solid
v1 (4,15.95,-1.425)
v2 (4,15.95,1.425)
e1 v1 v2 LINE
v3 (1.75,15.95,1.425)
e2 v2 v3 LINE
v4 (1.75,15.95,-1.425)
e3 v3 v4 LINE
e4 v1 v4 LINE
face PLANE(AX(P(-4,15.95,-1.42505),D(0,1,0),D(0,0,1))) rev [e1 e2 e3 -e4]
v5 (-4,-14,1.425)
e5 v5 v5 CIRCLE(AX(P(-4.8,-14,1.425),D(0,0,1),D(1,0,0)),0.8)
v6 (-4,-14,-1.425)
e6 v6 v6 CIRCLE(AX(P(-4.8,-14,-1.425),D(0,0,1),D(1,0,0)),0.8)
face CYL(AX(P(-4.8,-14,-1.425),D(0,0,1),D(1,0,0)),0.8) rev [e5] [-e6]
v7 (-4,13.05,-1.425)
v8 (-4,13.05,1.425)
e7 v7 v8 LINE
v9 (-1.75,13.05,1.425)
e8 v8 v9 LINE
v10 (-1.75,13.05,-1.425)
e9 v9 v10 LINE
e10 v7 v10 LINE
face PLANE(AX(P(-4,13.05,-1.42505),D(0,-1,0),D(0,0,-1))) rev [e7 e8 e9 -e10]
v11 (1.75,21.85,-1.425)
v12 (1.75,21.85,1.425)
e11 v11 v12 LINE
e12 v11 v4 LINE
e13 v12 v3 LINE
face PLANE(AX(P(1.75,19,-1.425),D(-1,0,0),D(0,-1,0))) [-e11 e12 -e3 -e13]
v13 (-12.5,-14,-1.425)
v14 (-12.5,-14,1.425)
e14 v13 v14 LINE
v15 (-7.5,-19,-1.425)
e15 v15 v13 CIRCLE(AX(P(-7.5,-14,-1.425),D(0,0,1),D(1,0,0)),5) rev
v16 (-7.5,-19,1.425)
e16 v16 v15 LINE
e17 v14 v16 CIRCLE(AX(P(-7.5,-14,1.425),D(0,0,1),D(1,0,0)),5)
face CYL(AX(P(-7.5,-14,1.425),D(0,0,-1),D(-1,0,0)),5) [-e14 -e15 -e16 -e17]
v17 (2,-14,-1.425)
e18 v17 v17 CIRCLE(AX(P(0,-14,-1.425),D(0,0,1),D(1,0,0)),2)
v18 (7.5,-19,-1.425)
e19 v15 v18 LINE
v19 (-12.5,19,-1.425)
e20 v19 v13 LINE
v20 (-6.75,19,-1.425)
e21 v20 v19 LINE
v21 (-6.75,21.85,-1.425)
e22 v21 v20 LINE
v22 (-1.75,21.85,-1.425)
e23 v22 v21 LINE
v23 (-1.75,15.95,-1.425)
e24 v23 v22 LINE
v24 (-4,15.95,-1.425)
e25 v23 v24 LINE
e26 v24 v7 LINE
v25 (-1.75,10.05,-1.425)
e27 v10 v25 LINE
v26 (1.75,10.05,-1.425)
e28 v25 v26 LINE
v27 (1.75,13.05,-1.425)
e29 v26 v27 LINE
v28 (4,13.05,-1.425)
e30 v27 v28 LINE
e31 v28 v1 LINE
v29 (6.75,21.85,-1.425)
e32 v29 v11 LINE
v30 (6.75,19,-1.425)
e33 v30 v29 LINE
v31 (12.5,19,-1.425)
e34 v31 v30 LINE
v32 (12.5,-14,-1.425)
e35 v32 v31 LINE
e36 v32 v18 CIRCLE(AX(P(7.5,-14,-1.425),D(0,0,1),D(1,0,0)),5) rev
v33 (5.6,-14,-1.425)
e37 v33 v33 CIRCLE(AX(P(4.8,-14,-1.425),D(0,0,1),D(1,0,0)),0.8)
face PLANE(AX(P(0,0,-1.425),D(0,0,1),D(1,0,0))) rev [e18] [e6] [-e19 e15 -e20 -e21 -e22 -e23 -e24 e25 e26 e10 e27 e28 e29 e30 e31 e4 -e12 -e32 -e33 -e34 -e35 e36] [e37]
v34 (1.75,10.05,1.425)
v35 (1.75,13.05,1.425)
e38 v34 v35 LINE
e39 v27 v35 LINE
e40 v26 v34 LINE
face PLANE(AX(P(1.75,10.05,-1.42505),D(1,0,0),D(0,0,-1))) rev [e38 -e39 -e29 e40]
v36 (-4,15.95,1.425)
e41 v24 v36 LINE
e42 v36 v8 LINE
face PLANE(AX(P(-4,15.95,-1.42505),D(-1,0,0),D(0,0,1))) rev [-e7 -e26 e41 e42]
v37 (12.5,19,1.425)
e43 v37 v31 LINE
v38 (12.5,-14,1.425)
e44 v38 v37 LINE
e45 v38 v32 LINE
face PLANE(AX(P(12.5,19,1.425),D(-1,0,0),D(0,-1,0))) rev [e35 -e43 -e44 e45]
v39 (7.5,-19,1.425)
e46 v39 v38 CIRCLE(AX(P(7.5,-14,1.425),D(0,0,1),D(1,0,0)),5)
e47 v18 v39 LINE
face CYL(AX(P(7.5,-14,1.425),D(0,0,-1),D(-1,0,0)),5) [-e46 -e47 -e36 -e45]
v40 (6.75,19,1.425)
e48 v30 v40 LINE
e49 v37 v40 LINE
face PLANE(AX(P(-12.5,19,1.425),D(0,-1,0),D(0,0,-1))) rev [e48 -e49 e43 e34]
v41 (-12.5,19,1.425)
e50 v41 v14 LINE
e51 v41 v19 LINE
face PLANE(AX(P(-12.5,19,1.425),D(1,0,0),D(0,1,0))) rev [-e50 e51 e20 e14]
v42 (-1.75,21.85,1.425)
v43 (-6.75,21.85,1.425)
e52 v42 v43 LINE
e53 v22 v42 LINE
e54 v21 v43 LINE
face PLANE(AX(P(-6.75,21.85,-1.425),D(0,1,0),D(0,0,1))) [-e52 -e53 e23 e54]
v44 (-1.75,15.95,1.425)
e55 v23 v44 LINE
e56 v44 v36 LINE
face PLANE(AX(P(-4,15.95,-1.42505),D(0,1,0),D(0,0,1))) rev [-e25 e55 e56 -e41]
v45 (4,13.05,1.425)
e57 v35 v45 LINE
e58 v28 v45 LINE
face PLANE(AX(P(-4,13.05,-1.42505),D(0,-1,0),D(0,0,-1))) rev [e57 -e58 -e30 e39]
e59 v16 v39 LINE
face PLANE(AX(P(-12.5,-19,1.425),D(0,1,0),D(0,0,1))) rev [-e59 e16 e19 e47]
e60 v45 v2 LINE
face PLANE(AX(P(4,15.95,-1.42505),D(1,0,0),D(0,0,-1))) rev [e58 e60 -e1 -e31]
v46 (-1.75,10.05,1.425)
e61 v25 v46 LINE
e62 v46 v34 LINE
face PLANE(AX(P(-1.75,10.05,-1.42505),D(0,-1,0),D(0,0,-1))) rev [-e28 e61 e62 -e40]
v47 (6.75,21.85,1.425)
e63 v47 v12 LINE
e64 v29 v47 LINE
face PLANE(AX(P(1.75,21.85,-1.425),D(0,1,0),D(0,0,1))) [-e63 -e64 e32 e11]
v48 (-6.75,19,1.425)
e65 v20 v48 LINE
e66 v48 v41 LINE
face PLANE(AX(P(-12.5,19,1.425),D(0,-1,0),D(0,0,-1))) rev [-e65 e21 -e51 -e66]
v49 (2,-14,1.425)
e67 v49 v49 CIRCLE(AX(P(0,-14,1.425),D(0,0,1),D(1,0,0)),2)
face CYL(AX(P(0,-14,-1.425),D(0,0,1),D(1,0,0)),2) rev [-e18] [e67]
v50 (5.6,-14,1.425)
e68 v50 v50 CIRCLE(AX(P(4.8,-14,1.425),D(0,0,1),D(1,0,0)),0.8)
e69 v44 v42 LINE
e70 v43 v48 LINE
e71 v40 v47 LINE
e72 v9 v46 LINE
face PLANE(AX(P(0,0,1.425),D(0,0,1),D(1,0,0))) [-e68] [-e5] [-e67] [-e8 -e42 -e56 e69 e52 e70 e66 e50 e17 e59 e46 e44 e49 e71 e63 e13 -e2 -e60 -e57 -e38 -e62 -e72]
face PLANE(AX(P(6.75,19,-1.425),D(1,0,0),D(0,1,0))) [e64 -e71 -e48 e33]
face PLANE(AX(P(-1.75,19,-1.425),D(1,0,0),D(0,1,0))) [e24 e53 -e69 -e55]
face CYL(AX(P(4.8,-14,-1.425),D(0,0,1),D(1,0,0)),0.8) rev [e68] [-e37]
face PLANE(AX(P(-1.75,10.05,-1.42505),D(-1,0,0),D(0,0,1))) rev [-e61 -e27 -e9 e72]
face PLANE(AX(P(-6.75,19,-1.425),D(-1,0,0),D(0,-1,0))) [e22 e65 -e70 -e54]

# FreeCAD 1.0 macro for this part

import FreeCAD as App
import Part
import Sketcher

V = App.Vector
Q = App.Units.Quantity


def edges_at(feature, points):
    """Names of the edges that pass closest to the given points."""
    edges = feature.Shape.Edges
    near = lambda p: min(range(len(edges)), key=lambda i: edges[i].distToShape(Part.Vertex(*p))[0])
    return sorted({f"Edge{near(p) + 1}" for p in points})


def add_polygon(sketch, points):
    """Adds a closed chain of lines whose ends are joined by coincident constraints."""
    first, n = sketch.GeometryCount, len(points)
    for a, b in zip(points, points[1:] + points[:1]):
        sketch.addGeometry(Part.LineSegment(App.Vector(*a, 0), App.Vector(*b, 0)), False)
    for i in range(n):
        sketch.addConstraint(Sketcher.Constraint("Coincident", first + i, 2, first + (i + 1) % n, 1))

doc = App.newDocument("Part")
params = doc.addObject("Spreadsheet::Sheet", "Params")
for row, (alias, value) in enumerate([
    ("sketch1_width", "25 mm"),
    ("sketch1_height", "38 mm"),
    ("pad1_length", "2.85 mm"),
    ("sketch2_diameter", "4 mm"),
    ("sketch3_diameter", "1.6 mm"),
    ("sketch4_width", "5 mm"),
    ("sketch4_height", "2.85 mm"),
    ("pad2_length", "2.85 mm"),
    ("sketch5_width", "8 mm"),
    ("sketch5_height", "2.9 mm"),
    ("sketch6_width", "3.5 mm"),
    ("sketch6_height", "8.95 mm"),
    ("fillet_radius", "5 mm"),
], start=1):
    params.set(f"A{row}", alias)
    params.set(f"B{row}", "=" + value)
    params.setAlias(f"B{row}", alias)

body = doc.addObject("PartDesign::Body", "Body")

# Sketch on XY plane
sketch1 = body.newObject("Sketcher::SketchObject", "Sketch")
sketch1.AttachmentSupport = (doc.getObject("XY_Plane"), [""])
sketch1.MapMode = "FlatFace"
add_polygon(sketch1, [(-12.5, 19), (-12.5, -19), (12.5, -19), (12.5, 19)])  # lines 0-3
sketch1.addConstraint([
    Sketcher.Constraint("Vertical", 0),
    Sketcher.Constraint("Horizontal", 1),
    Sketcher.Constraint("Vertical", 2),
    Sketcher.Constraint("Horizontal", 3),
    Sketcher.Constraint("Symmetric", 0, 2, 2, 2, -1, 1),
    Sketcher.Constraint("DistanceX", 1, 1, 1, 2, Q("25 mm")),
    Sketcher.Constraint("DistanceY", 0, 2, 0, 1, Q("38 mm")),
])
sketch1.setExpression("Constraints[9]", "Params.sketch1_width")
sketch1.setExpression("Constraints[10]", "Params.sketch1_height")
pad1 = body.newObject("PartDesign::Pad", "Pad")
pad1.Profile = sketch1
pad1.setExpression("Length", "Params.pad1_length")
pad1.Midplane = True

# Sketch on XY plane
sketch2 = body.newObject("Sketcher::SketchObject", "Sketch001")
sketch2.AttachmentSupport = (doc.getObject("XY_Plane"), [""])
sketch2.MapMode = "FlatFace"
sketch2.AttachmentOffset = App.Placement(V(0, 0, 1.425), App.Rotation())
sketch2.addGeometry(Part.Circle(V(0, -14, 0), V(0, 0, 1), 2), False)
sketch2.addConstraint([
    Sketcher.Constraint("PointOnObject", 0, 3, -2),
    Sketcher.Constraint("Diameter", 0, Q("4 mm")),
    Sketcher.Constraint("DistanceY", 0, 3, -1, 1, Q("14 mm")),
])
sketch2.setExpression("Constraints[1]", "Params.sketch2_diameter")
pocket1 = body.newObject("PartDesign::Pocket", "Pocket")
pocket1.Profile = sketch2
pocket1.Type = "ThroughAll"

# Sketch on XY plane
sketch3 = body.newObject("Sketcher::SketchObject", "Sketch002")
sketch3.AttachmentSupport = (doc.getObject("XY_Plane"), [""])
sketch3.MapMode = "FlatFace"
sketch3.AttachmentOffset = App.Placement(V(0, 0, 1.425), App.Rotation())
sketch3.addGeometry([
    Part.Circle(V(-4.8, -14, 0), V(0, 0, 1), 0.8),
    Part.Circle(V(4.8, -14, 0), V(0, 0, 1), 0.8),
], False)
sketch3.addConstraint([
    Sketcher.Constraint("Equal", 0, 1),
    Sketcher.Constraint("Symmetric", 0, 3, 1, 3, -2),
    Sketcher.Constraint("Diameter", 0, Q("1.6 mm")),
    Sketcher.Constraint("DistanceY", 0, 3, -1, 1, Q("14 mm")),
    Sketcher.Constraint("DistanceX", 0, 3, -1, 1, Q("4.8 mm")),
])
sketch3.setExpression("Constraints[2]", "Params.sketch3_diameter")
pocket2 = body.newObject("PartDesign::Pocket", "Pocket001")
pocket2.Profile = sketch3
pocket2.Type = "ThroughAll"

# Sketch on XY plane
sketch4 = body.newObject("Sketcher::SketchObject", "Sketch003")
sketch4.AttachmentSupport = (doc.getObject("XY_Plane"), [""])
sketch4.MapMode = "FlatFace"
sketch4.AttachmentOffset = App.Placement(V(0, 0, 1.425), App.Rotation())
add_polygon(sketch4, [(-6.75, 21.85), (-6.75, 19), (-1.75, 19), (-1.75, 21.85)])  # lines 0-3
add_polygon(sketch4, [(1.75, 21.85), (1.75, 19), (6.75, 19), (6.75, 21.85)])  # lines 4-7
sketch4.addConstraint([
    Sketcher.Constraint("Vertical", 0),
    Sketcher.Constraint("Horizontal", 1),
    Sketcher.Constraint("Vertical", 2),
    Sketcher.Constraint("Horizontal", 3),
    Sketcher.Constraint("Vertical", 4),
    Sketcher.Constraint("Horizontal", 5),
    Sketcher.Constraint("Vertical", 6),
    Sketcher.Constraint("Horizontal", 7),
    Sketcher.Constraint("Symmetric", 1, 2, 4, 2, -2),
    Sketcher.Constraint("Symmetric", 3, 2, 6, 2, -2),
    Sketcher.Constraint("DistanceX", 1, 1, 1, 2, Q("5 mm")),
    Sketcher.Constraint("DistanceY", -1, 1, 0, 2, Q("19 mm")),
    Sketcher.Constraint("DistanceY", 0, 2, 0, 1, Q("2.85 mm")),
    Sketcher.Constraint("DistanceX", 1, 2, 4, 2, Q("3.5 mm")),
])
sketch4.setExpression("Constraints[18]", "Params.sketch4_width")
sketch4.setExpression("Constraints[20]", "Params.sketch4_height")
pad2 = body.newObject("PartDesign::Pad", "Pad001")
pad2.Profile = sketch4
pad2.setExpression("Length", "Params.pad2_length")
pad2.Reversed = True

# Sketch on XY plane
sketch5 = body.newObject("Sketcher::SketchObject", "Sketch004")
sketch5.AttachmentSupport = (doc.getObject("XY_Plane"), [""])
sketch5.MapMode = "FlatFace"
sketch5.AttachmentOffset = App.Placement(V(0, 0, 1.425), App.Rotation())
add_polygon(sketch5, [(-4, 15.95), (-4, 13.05), (4, 13.05), (4, 15.95)])  # lines 0-3
sketch5.addConstraint([
    Sketcher.Constraint("Vertical", 0),
    Sketcher.Constraint("Horizontal", 1),
    Sketcher.Constraint("Vertical", 2),
    Sketcher.Constraint("Horizontal", 3),
    Sketcher.Constraint("DistanceX", 1, 1, 1, 2, Q("8 mm")),
    Sketcher.Constraint("DistanceY", 0, 2, 0, 1, Q("2.9 mm")),
    Sketcher.Constraint("DistanceX", 0, 2, -1, 1, Q("4 mm")),
    Sketcher.Constraint("DistanceY", -1, 1, 0, 2, Q("13.05 mm")),
])
sketch5.setExpression("Constraints[8]", "Params.sketch5_width")
sketch5.setExpression("Constraints[9]", "Params.sketch5_height")
pocket3 = body.newObject("PartDesign::Pocket", "Pocket002")
pocket3.Profile = sketch5
pocket3.Type = "ThroughAll"

# Sketch on XY plane
sketch6 = body.newObject("Sketcher::SketchObject", "Sketch005")
sketch6.AttachmentSupport = (doc.getObject("XY_Plane"), [""])
sketch6.MapMode = "FlatFace"
sketch6.AttachmentOffset = App.Placement(V(0, 0, 1.425), App.Rotation())
add_polygon(sketch6, [(-1.75, 19), (-1.75, 10.05), (1.75, 10.05), (1.75, 19)])  # lines 0-3
sketch6.addConstraint([
    Sketcher.Constraint("Vertical", 0),
    Sketcher.Constraint("Horizontal", 1),
    Sketcher.Constraint("Vertical", 2),
    Sketcher.Constraint("Horizontal", 3),
    Sketcher.Constraint("DistanceX", 1, 1, 1, 2, Q("3.5 mm")),
    Sketcher.Constraint("DistanceY", -1, 1, 2, 2, Q("19 mm")),
    Sketcher.Constraint("DistanceY", 0, 2, 0, 1, Q("8.95 mm")),
    Sketcher.Constraint("DistanceX", 0, 2, -1, 1, Q("1.75 mm")),
])
sketch6.setExpression("Constraints[8]", "Params.sketch6_width")
sketch6.setExpression("Constraints[10]", "Params.sketch6_height")
pocket4 = body.newObject("PartDesign::Pocket", "Pocket003")
pocket4.Profile = sketch6
pocket4.Type = "ThroughAll"
doc.recompute()

fillet = body.newObject("PartDesign::Fillet", "Fillet")
fillet.Base = (pocket4, edges_at(pocket4, [(12.5, -19, 0), (-12.5, -19, 0)]))
fillet.setExpression("Radius", "Params.fillet_radius")

doc.recompute()
